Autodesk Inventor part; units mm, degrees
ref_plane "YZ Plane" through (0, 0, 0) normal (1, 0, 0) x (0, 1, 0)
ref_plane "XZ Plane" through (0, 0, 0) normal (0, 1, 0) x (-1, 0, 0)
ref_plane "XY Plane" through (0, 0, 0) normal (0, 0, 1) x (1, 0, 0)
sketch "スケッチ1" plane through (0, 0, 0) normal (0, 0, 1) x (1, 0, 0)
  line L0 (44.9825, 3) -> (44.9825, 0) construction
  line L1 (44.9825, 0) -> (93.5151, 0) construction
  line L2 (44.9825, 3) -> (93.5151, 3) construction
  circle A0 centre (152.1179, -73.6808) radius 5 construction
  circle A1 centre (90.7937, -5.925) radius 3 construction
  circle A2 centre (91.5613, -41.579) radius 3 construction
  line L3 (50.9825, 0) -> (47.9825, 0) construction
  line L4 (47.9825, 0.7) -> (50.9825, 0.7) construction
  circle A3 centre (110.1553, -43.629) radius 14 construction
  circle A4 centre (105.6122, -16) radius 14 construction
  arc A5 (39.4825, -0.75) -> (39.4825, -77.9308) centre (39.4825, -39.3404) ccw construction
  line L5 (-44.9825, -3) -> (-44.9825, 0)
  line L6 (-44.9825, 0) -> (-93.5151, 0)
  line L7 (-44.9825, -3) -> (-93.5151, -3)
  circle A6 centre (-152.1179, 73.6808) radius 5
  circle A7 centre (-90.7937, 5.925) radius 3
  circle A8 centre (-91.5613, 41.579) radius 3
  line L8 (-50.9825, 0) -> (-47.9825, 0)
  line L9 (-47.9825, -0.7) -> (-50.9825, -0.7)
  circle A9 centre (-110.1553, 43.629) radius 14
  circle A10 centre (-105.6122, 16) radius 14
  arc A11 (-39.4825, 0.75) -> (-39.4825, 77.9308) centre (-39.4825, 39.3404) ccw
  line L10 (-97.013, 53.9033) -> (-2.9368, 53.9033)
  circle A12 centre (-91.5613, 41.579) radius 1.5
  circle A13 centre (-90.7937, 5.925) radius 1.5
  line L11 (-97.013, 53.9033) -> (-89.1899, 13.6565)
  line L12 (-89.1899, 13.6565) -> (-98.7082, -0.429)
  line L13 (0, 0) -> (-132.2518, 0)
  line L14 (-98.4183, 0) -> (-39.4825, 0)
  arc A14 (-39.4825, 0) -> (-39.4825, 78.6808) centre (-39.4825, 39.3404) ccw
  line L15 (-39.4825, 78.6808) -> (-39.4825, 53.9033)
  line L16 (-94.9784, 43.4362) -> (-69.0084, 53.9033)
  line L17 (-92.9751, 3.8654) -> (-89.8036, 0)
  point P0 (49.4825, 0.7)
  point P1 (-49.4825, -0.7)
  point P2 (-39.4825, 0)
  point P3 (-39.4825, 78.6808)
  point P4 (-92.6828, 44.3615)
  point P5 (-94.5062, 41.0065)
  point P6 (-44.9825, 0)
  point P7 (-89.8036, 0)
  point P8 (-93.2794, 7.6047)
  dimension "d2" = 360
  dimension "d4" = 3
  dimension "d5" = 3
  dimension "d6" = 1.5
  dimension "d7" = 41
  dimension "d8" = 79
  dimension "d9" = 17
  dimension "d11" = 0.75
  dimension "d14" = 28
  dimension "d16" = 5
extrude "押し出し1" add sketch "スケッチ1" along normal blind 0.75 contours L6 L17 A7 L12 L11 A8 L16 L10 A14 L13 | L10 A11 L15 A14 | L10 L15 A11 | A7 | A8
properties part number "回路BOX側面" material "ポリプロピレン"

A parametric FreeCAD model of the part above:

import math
import FreeCAD as App
import Part
import Sketcher

V = App.Vector
Q = App.Units.Quantity

doc = App.newDocument("Part")
body = doc.addObject("PartDesign::Body", "Body")

sketch1 = doc.addObject("Sketcher::SketchObject", "Sketch")
body.addObject(sketch1)
sketch1.AttachmentSupport = (doc.XY_Plane, [""])
sketch1.MapMode = "FlatFace"
sketch1.addGeometry([
    Part.ArcOfCircle(Part.Circle(V(-39.5, 39.3, 0), V(0, 0, 1), 39.3), math.radians(-90), math.radians(90)),
    Part.LineSegment(V(-39.5, 78.7, 0), V(-39.5, 53.9, 0)),
    Part.LineSegment(V(-39.5, 53.9, 0), V(-69, 53.9, 0)),
    Part.LineSegment(V(-69, 53.9, 0), V(-92.7, 44.4, 0)),
    Part.ArcOfCircle(Part.Circle(V(-91.6, 41.6, 0), V(0, 0, 1), 3), math.radians(112), math.radians(191)),
    Part.LineSegment(V(-94.5, 41, 0), V(-89.2, 13.7, 0)),
    Part.LineSegment(V(-89.2, 13.7, 0), V(-93.3, 7.6, 0)),
    Part.ArcOfCircle(Part.Circle(V(-90.8, 5.9, 0), V(0, 0, 1), 3), math.radians(146), math.radians(223)),
    Part.LineSegment(V(-93, 3.9, 0), V(-89.8, 0, 0)),
    Part.LineSegment(V(-89.8, 0, 0), V(-39.5, 0, 0)),
    Part.Circle(V(-90.8, 5.9, 0), V(0, 0, 1), 1.5),
    Part.Circle(V(-91.6, 41.6, 0), V(0, 0, 1), 1.5),
], False)
sketch1.addConstraint([
    Sketcher.Constraint("Coincident", 0, 2, 1, 1),
    Sketcher.Constraint("Coincident", 1, 2, 2, 1),
    Sketcher.Constraint("Coincident", 2, 2, 3, 1),
    Sketcher.Constraint("Tangent", 3, 2, 4, 1),
    Sketcher.Constraint("Tangent", 4, 2, 5, 1),
    Sketcher.Constraint("Coincident", 5, 2, 6, 1),
    Sketcher.Constraint("Tangent", 6, 2, 7, 1),
    Sketcher.Constraint("Coincident", 7, 2, 8, 1),
    Sketcher.Constraint("Coincident", 8, 2, 9, 1),
    Sketcher.Constraint("Tangent", 9, 2, 0, 1),
    Sketcher.Constraint("Vertical", 1),
    Sketcher.Constraint("Horizontal", 2),
    Sketcher.Constraint("Horizontal", 9),
    Sketcher.Constraint("Coincident", 10, 3, 7, 3),
    Sketcher.Constraint("Coincident", 11, 3, 4, 3),
    Sketcher.Constraint("Equal", 4, 7),
    Sketcher.Constraint("Equal", 10, 11),
    Sketcher.Constraint("PointOnObject", 8, 2, -1),
    Sketcher.Constraint("Vertical", 1, 2, 9, 2),
    Sketcher.Constraint("Diameter", 10, Q("3 mm")),
    Sketcher.Constraint("Radius", 4, Q("3 mm")),
    Sketcher.Constraint("Angle", 5, Q("-79 deg")),
    Sketcher.Constraint("Distance", 8, Q("5 mm")),
    Sketcher.Constraint("Angle", 6, Q("-124.049 deg")),
    Sketcher.Constraint("Radius", 0, Q("39.3404 mm")),
    Sketcher.Constraint("DistanceX", 2, 2, 2, 1, Q("29.526 mm")),
    Sketcher.Constraint("DistanceX", 9, 1, 9, 2, Q("50.321 mm")),
    Sketcher.Constraint("DistanceX", 5, 2, -1, 1, Q("89.19 mm")),
    Sketcher.Constraint("DistanceY", 5, 2, 4, 2, Q("27.35 mm")),
    Sketcher.Constraint("DistanceX", 7, 3, 8, 2, Q("0.99 mm")),
    Sketcher.Constraint("Distance", 3, Q("25.525 mm")),
    Sketcher.Constraint("Distance", 6, Q("7.304 mm")),
    Sketcher.Constraint("DistanceY", 1, 2, 1, 1, Q("24.7775 mm")),
])
pad1 = doc.addObject("PartDesign::Pad", "Pad")
body.addObject(pad1)
pad1.Profile = sketch1
pad1.Length = 0.75

doc.recompute()
